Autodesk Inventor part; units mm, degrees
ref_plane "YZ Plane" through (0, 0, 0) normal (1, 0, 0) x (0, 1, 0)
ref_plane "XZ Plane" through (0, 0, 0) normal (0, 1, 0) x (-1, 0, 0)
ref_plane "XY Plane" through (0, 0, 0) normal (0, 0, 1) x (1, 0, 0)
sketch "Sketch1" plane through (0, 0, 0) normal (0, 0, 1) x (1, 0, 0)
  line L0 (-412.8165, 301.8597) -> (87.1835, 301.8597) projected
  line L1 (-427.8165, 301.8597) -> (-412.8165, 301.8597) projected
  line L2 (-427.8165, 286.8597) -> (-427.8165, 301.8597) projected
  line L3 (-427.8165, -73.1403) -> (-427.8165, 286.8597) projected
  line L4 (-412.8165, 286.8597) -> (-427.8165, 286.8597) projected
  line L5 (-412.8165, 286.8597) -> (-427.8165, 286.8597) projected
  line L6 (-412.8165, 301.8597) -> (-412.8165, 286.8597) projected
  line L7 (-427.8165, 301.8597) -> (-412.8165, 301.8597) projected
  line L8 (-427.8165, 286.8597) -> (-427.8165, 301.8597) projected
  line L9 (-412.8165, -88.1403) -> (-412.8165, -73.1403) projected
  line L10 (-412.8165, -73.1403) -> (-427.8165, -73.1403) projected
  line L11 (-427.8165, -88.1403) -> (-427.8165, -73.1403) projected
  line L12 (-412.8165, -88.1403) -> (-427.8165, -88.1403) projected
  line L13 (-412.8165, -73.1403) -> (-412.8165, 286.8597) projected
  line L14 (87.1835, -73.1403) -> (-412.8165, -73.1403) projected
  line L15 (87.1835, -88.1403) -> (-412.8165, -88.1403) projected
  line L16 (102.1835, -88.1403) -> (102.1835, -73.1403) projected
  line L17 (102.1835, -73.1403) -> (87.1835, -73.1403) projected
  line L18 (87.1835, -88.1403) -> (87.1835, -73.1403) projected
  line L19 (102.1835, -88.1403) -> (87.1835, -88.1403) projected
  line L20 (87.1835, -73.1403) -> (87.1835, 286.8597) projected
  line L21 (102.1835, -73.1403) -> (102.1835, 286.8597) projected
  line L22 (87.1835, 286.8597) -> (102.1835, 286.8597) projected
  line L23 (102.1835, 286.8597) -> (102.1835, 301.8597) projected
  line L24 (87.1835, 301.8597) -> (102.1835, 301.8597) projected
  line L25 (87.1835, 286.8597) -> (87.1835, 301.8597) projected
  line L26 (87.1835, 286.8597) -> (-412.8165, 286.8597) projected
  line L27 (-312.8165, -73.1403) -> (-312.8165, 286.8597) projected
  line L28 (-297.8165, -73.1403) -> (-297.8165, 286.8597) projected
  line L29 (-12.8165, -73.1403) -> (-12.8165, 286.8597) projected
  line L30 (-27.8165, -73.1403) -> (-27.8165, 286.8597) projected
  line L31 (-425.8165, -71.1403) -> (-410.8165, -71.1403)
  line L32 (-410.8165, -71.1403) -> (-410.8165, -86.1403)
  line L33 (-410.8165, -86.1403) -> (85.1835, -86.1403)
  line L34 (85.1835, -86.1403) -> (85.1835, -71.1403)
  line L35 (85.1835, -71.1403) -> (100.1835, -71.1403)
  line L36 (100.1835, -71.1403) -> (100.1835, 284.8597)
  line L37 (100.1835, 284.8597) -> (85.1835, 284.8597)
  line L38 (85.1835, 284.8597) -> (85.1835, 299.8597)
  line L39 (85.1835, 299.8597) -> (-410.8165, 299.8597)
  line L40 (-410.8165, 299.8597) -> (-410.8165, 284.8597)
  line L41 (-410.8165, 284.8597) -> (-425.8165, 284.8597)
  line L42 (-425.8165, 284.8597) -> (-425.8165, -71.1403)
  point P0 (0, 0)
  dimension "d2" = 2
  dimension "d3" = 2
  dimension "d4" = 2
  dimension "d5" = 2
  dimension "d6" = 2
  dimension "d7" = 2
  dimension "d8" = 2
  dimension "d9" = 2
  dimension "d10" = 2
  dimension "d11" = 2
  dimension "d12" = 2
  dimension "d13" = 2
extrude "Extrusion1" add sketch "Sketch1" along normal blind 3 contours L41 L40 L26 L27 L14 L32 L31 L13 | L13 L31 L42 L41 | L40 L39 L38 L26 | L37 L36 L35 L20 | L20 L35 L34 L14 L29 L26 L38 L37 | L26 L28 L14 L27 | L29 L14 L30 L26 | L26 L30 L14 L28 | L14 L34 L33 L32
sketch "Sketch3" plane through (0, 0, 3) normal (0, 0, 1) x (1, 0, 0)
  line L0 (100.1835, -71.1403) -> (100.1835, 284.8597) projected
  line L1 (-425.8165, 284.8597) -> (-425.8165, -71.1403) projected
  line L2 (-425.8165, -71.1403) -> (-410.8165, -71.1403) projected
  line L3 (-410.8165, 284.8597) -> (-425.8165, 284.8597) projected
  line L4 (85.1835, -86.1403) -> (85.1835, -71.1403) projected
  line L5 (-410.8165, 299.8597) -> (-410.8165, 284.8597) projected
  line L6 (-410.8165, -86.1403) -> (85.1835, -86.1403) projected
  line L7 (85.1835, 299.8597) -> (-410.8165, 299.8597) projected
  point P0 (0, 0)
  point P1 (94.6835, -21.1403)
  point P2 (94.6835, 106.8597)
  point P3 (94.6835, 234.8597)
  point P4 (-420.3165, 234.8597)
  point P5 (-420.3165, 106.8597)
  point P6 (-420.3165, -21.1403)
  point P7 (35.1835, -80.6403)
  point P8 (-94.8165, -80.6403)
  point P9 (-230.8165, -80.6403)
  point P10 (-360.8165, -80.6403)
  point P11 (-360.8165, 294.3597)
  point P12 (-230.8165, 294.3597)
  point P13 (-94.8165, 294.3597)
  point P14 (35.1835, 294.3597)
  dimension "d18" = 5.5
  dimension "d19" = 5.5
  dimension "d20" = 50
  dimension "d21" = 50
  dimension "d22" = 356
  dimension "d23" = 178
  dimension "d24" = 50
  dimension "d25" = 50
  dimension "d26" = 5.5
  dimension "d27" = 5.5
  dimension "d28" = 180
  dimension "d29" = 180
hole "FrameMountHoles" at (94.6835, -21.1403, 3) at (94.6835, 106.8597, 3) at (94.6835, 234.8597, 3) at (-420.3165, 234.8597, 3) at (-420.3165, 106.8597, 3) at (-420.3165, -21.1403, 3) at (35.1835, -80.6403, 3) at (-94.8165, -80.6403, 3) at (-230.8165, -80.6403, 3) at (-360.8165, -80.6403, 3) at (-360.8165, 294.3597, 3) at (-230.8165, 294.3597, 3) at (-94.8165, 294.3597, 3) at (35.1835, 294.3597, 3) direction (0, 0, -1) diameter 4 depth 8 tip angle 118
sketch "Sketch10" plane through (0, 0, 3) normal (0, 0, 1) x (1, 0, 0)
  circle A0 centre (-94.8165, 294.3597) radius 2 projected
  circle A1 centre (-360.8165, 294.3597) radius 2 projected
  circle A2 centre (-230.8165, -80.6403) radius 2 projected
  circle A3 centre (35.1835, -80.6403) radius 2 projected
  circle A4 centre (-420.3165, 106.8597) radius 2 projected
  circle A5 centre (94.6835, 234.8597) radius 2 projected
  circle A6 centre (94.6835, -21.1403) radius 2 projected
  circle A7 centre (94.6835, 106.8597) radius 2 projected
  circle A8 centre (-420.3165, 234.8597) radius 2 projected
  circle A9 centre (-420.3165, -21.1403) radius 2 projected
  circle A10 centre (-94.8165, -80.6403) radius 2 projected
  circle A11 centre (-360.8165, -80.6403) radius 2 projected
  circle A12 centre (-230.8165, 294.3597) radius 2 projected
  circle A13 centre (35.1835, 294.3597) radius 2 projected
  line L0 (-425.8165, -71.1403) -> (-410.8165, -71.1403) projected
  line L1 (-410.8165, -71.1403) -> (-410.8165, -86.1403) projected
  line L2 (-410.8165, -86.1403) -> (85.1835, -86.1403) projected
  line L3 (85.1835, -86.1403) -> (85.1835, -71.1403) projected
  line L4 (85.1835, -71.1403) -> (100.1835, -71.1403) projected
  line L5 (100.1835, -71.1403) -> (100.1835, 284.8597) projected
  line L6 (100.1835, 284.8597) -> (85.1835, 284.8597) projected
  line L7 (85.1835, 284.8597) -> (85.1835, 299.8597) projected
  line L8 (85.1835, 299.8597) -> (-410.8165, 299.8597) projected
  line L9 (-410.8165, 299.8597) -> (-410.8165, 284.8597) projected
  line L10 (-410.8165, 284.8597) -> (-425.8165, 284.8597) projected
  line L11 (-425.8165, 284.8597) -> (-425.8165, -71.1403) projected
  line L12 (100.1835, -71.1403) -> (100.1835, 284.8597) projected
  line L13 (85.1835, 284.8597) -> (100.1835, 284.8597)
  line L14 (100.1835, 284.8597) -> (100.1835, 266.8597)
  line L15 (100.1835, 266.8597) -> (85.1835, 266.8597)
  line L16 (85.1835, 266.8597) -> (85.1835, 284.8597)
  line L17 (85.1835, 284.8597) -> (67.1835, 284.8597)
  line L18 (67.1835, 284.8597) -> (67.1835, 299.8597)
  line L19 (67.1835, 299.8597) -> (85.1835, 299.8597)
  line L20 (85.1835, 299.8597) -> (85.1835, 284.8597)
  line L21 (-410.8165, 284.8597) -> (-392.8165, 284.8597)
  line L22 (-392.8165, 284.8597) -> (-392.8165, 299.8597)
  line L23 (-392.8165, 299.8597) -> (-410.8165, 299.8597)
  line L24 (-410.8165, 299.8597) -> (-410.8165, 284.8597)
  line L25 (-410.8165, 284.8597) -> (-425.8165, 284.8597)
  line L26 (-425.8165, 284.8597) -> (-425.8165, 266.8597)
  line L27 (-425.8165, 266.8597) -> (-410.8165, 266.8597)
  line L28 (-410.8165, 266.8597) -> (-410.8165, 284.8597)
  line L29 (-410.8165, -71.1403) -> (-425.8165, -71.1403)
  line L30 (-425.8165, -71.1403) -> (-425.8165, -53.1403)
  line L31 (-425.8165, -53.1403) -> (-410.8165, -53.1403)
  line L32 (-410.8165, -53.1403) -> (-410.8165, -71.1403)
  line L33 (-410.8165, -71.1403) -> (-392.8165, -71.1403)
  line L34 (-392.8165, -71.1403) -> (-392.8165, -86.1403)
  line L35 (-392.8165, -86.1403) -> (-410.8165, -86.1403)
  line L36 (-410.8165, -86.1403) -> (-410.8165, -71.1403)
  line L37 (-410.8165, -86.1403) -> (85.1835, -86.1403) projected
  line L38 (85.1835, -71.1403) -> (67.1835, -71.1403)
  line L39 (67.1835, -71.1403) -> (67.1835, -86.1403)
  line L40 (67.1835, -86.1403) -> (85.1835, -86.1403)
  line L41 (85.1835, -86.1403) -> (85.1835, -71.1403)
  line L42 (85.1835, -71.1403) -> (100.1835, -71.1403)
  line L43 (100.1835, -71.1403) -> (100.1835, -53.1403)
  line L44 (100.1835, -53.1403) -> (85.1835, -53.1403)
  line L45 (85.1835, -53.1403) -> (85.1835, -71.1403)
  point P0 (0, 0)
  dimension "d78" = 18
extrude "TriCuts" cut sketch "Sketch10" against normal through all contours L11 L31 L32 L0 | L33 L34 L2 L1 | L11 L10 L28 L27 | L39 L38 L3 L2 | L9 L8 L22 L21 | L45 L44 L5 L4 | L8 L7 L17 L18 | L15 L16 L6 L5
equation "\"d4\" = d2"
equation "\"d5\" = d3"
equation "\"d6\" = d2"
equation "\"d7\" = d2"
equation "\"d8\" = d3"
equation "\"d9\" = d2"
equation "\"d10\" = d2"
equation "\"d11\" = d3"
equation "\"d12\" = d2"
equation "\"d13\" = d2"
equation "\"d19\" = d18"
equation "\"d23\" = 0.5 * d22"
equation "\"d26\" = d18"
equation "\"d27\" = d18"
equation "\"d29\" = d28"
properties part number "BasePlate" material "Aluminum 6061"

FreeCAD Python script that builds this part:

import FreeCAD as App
import Part
import Sketcher

V = App.Vector
Q = App.Units.Quantity


def add_polygon(sketch, points):
    """Adds a closed chain of lines whose ends are joined by coincident constraints."""
    first, n = sketch.GeometryCount, len(points)
    for a, b in zip(points, points[1:] + points[:1]):
        sketch.addGeometry(Part.LineSegment(App.Vector(*a, 0), App.Vector(*b, 0)), False)
    for i in range(n):
        sketch.addConstraint(Sketcher.Constraint("Coincident", first + i, 2, first + (i + 1) % n, 1))

doc = App.newDocument("Part")
body = doc.addObject("PartDesign::Body", "Body")

# Sketch on XY plane
sketch1 = body.newObject("Sketcher::SketchObject", "Sketch")
sketch1.AttachmentSupport = (doc.getObject("XY_Plane"), [""])
sketch1.MapMode = "FlatFace"
add_polygon(sketch1, [(-411, 285), (-426, 285), (-426, -71), (-411, -71), (-411, -86), (85, -86), (85, -71), (100, -71), (100, 285), (85, 285), (85, 300), (-411, 300)])  # lines 0-11
sketch1.addConstraint([
    Sketcher.Constraint("Horizontal", 0),
    Sketcher.Constraint("Vertical", 1),
    Sketcher.Constraint("Horizontal", 2),
    Sketcher.Constraint("Vertical", 3),
    Sketcher.Constraint("Horizontal", 4),
    Sketcher.Constraint("Vertical", 5),
    Sketcher.Constraint("Horizontal", 6),
    Sketcher.Constraint("Vertical", 7),
    Sketcher.Constraint("Horizontal", 8),
    Sketcher.Constraint("Vertical", 9),
    Sketcher.Constraint("Horizontal", 10),
    Sketcher.Constraint("Vertical", 11),
    Sketcher.Constraint("Horizontal", 2, 2, 5, 2),
    Sketcher.Constraint("Horizontal", 0, 2, 7, 2),
    Sketcher.Constraint("Vertical", 5, 2, 8, 2),
    Sketcher.Constraint("Vertical", 3, 2, 10, 2),
    Sketcher.Constraint("Equal", 2, 6),
    Sketcher.Constraint("Equal", 8, 3),
    Sketcher.Constraint("Equal", 5, 9),
    Sketcher.Constraint("DistanceX", 0, 2, 0, 1, Q("15 mm")),
    Sketcher.Constraint("DistanceX", 4, 1, 4, 2, Q("496 mm")),
    Sketcher.Constraint("DistanceY", 1, 2, 1, 1, Q("356 mm")),
    Sketcher.Constraint("DistanceX", 0, 2, -1, 1, Q("425.8165 mm")),
    Sketcher.Constraint("DistanceY", -1, 1, 0, 2, Q("284.8597 mm")),
])
pad1 = body.newObject("PartDesign::Pad", "Pad")
pad1.Profile = sketch1
pad1.Length = 3

# Sketch on XY plane
sketch2 = body.newObject("Sketcher::SketchObject", "Sketch001")
sketch2.AttachmentSupport = (doc.getObject("XY_Plane"), [""])
sketch2.MapMode = "FlatFace"
sketch2.AttachmentOffset = App.Placement(V(0, 0, 3), App.Rotation())
sketch2.addGeometry([
    Part.Circle(V(94.7, -21.1, 0), V(0, 0, 1), 2),  # 0
    Part.Circle(V(94.7, 106.9, 0), V(0, 0, 1), 2),  # 1
    Part.Circle(V(94.7, 234.9, 0), V(0, 0, 1), 2),  # 2
    Part.Circle(V(-420.3, 234.9, 0), V(0, 0, 1), 2),  # 3
    Part.Circle(V(-420.3, 106.9, 0), V(0, 0, 1), 2),  # 4
    Part.Circle(V(-420.3, -21.1, 0), V(0, 0, 1), 2),  # 5
    Part.Circle(V(35.2, -80.6, 0), V(0, 0, 1), 2),  # 6
    Part.Circle(V(-94.8, -80.6, 0), V(0, 0, 1), 2),  # 7
    Part.Circle(V(-230.8, -80.6, 0), V(0, 0, 1), 2),  # 8
    Part.Circle(V(-360.8, -80.6, 0), V(0, 0, 1), 2),  # 9
    Part.Circle(V(-360.8, 294.4, 0), V(0, 0, 1), 2),  # 10
    Part.Circle(V(-230.8, 294.4, 0), V(0, 0, 1), 2),  # 11
    Part.Circle(V(-94.8, 294.4, 0), V(0, 0, 1), 2),  # 12
    Part.Circle(V(35.2, 294.4, 0), V(0, 0, 1), 2),  # 13
], False)
sketch2.addConstraint([
    Sketcher.Constraint("Equal", 0, 1),
    Sketcher.Constraint("Equal", 1, 2),
    Sketcher.Constraint("Equal", 2, 3),
    Sketcher.Constraint("Equal", 3, 4),
    Sketcher.Constraint("Equal", 4, 5),
    Sketcher.Constraint("Equal", 5, 6),
    Sketcher.Constraint("Equal", 6, 7),
    Sketcher.Constraint("Equal", 7, 8),
    Sketcher.Constraint("Equal", 8, 9),
    Sketcher.Constraint("Equal", 9, 10),
    Sketcher.Constraint("Equal", 10, 11),
    Sketcher.Constraint("Equal", 11, 12),
    Sketcher.Constraint("Equal", 12, 13),
    Sketcher.Constraint("Horizontal", 2, 3, 3, 3),
    Sketcher.Constraint("Horizontal", 1, 3, 4, 3),
    Sketcher.Constraint("Horizontal", 0, 3, 5, 3),
    Sketcher.Constraint("Horizontal", 6, 3, 7, 3),
    Sketcher.Constraint("Horizontal", 7, 3, 8, 3),
    Sketcher.Constraint("Horizontal", 8, 3, 9, 3),
    Sketcher.Constraint("Horizontal", 10, 3, 11, 3),
    Sketcher.Constraint("Horizontal", 11, 3, 12, 3),
    Sketcher.Constraint("Horizontal", 12, 3, 13, 3),
    Sketcher.Constraint("Vertical", 0, 3, 1, 3),
    Sketcher.Constraint("Vertical", 1, 3, 2, 3),
    Sketcher.Constraint("Vertical", 3, 3, 4, 3),
    Sketcher.Constraint("Vertical", 4, 3, 5, 3),
    Sketcher.Constraint("Vertical", 9, 3, 10, 3),
    Sketcher.Constraint("Vertical", 8, 3, 11, 3),
    Sketcher.Constraint("Vertical", 7, 3, 12, 3),
    Sketcher.Constraint("Vertical", 6, 3, 13, 3),
    Sketcher.Constraint("Diameter", 0, Q("4 mm")),
    Sketcher.Constraint("DistanceY", 0, 3, 1, 3, Q("128 mm")),
    Sketcher.Constraint("DistanceY", 1, 3, 2, 3, Q("128 mm")),
    Sketcher.Constraint("DistanceX", 3, 3, 2, 3, Q("515 mm")),
    Sketcher.Constraint("DistanceX", 7, 3, 6, 3, Q("130 mm")),
    Sketcher.Constraint("DistanceX", 8, 3, 7, 3, Q("136 mm")),
    Sketcher.Constraint("DistanceX", 9, 3, 8, 3, Q("130 mm")),
    Sketcher.Constraint("DistanceY", 9, 3, 10, 3, Q("375 mm")),
    Sketcher.Constraint("DistanceX", 6, 3, 0, 3, Q("59.5 mm")),
    Sketcher.Constraint("DistanceY", 6, 3, 0, 3, Q("59.5 mm")),
    Sketcher.Constraint("DistanceX", -1, 1, 0, 3, Q("94.6835 mm")),
    Sketcher.Constraint("DistanceY", 0, 3, -1, 1, Q("21.1403 mm")),
])
doc.recompute()
hole = body.newObject("PartDesign::Hole", "Hole")
hole.Profile = sketch2
hole.ThreadType = "None"
hole.Diameter = 4
hole.DepthType = "Dimension"
hole.Depth = 8
hole.DrillPoint = "Angled"
hole.DrillPointAngle = 118

# Sketch on XY plane
sketch3 = body.newObject("Sketcher::SketchObject", "Sketch002")
sketch3.AttachmentSupport = (doc.getObject("XY_Plane"), [""])
sketch3.MapMode = "FlatFace"
sketch3.AttachmentOffset = App.Placement(V(0, 0, 3), App.Rotation())
add_polygon(sketch3, [(-426, -53), (-426, -71), (-411, -71), (-411, -53)])  # lines 0-3
add_polygon(sketch3, [(-393, -71), (-411, -71), (-411, -86), (-393, -86)])  # lines 4-7
add_polygon(sketch3, [(-426, 285), (-426, 267), (-411, 267), (-411, 285)])  # lines 8-11
add_polygon(sketch3, [(67, -71), (67, -86), (85, -86), (85, -71)])  # lines 12-15
add_polygon(sketch3, [(-411, 300), (-411, 285), (-393, 285), (-393, 300)])  # lines 16-19
add_polygon(sketch3, [(85, -53), (85, -71), (100, -71), (100, -53)])  # lines 20-23
add_polygon(sketch3, [(85, 300), (67, 300), (67, 285), (85, 285)])  # lines 24-27
add_polygon(sketch3, [(85, 267), (100, 267), (100, 285), (85, 285)])  # lines 28-31
sketch3.addConstraint([
    Sketcher.Constraint("Vertical", 0),
    Sketcher.Constraint("Horizontal", 1),
    Sketcher.Constraint("Vertical", 2),
    Sketcher.Constraint("Horizontal", 3),
    Sketcher.Constraint("Horizontal", 4),
    Sketcher.Constraint("Vertical", 5),
    Sketcher.Constraint("Horizontal", 6),
    Sketcher.Constraint("Vertical", 7),
    Sketcher.Constraint("Vertical", 8),
    Sketcher.Constraint("Horizontal", 9),
    Sketcher.Constraint("Vertical", 10),
    Sketcher.Constraint("Horizontal", 11),
    Sketcher.Constraint("Vertical", 12),
    Sketcher.Constraint("Horizontal", 13),
    Sketcher.Constraint("Vertical", 14),
    Sketcher.Constraint("Horizontal", 15),
    Sketcher.Constraint("Vertical", 16),
    Sketcher.Constraint("Horizontal", 17),
    Sketcher.Constraint("Vertical", 18),
    Sketcher.Constraint("Horizontal", 19),
    Sketcher.Constraint("Vertical", 20),
    Sketcher.Constraint("Horizontal", 21),
    Sketcher.Constraint("Vertical", 22),
    Sketcher.Constraint("Horizontal", 23),
    Sketcher.Constraint("Horizontal", 24),
    Sketcher.Constraint("Vertical", 25),
    Sketcher.Constraint("Horizontal", 26),
    Sketcher.Constraint("Vertical", 27),
    Sketcher.Constraint("Horizontal", 28),
    Sketcher.Constraint("Vertical", 29),
    Sketcher.Constraint("Horizontal", 30),
    Sketcher.Constraint("Vertical", 31),
    Sketcher.Constraint("Coincident", 4, 2, 1, 2),
    Sketcher.Constraint("Coincident", 16, 2, 10, 2),
    Sketcher.Constraint("Coincident", 20, 2, 14, 2),
    Sketcher.Constraint("Coincident", 30, 2, 26, 2),
    Sketcher.Constraint("Horizontal", 6, 2, 12, 2),
    Sketcher.Constraint("Horizontal", 7, 2, 14, 2),
    Sketcher.Constraint("Horizontal", 3, 2, 22, 2),
    Sketcher.Constraint("Horizontal", 19, 2, 24, 2),
    Sketcher.Constraint("Horizontal", 17, 2, 25, 2),
    Sketcher.Constraint("Horizontal", 9, 2, 28, 2),
    Sketcher.Constraint("Vertical", 3, 2, 8, 2),
    Sketcher.Constraint("Vertical", 5, 2, 9, 2),
    Sketcher.Constraint("Vertical", 7, 2, 17, 2),
    Sketcher.Constraint("Vertical", 15, 2, 24, 2),
    Sketcher.Constraint("Vertical", 23, 2, 26, 2),
    Sketcher.Constraint("Vertical", 22, 2, 28, 2),
    Sketcher.Constraint("Equal", 6, 13),
    Sketcher.Constraint("Equal", 11, 21),
    Sketcher.Constraint("Equal", 26, 0),
    Sketcher.Constraint("Equal", 30, 5),
    Sketcher.Constraint("Equal", 2, 8),
    Sketcher.Constraint("Equal", 14, 16),
    Sketcher.Constraint("DistanceX", 4, 2, 4, 1, Q("18 mm")),
    Sketcher.Constraint("DistanceX", 1, 1, 1, 2, Q("15 mm")),
    Sketcher.Constraint("DistanceY", 3, 2, 8, 2, Q("320 mm")),
    Sketcher.Constraint("DistanceX", 6, 2, 12, 2, Q("460 mm")),
    Sketcher.Constraint("DistanceX", 0, 2, -1, 1, Q("425.8165 mm")),
    Sketcher.Constraint("DistanceY", 0, 2, -1, 1, Q("71.1403 mm")),
])
pocket1 = body.newObject("PartDesign::Pocket", "Pocket")
pocket1.Profile = sketch3
pocket1.Type = "ThroughAll"

doc.recompute()
